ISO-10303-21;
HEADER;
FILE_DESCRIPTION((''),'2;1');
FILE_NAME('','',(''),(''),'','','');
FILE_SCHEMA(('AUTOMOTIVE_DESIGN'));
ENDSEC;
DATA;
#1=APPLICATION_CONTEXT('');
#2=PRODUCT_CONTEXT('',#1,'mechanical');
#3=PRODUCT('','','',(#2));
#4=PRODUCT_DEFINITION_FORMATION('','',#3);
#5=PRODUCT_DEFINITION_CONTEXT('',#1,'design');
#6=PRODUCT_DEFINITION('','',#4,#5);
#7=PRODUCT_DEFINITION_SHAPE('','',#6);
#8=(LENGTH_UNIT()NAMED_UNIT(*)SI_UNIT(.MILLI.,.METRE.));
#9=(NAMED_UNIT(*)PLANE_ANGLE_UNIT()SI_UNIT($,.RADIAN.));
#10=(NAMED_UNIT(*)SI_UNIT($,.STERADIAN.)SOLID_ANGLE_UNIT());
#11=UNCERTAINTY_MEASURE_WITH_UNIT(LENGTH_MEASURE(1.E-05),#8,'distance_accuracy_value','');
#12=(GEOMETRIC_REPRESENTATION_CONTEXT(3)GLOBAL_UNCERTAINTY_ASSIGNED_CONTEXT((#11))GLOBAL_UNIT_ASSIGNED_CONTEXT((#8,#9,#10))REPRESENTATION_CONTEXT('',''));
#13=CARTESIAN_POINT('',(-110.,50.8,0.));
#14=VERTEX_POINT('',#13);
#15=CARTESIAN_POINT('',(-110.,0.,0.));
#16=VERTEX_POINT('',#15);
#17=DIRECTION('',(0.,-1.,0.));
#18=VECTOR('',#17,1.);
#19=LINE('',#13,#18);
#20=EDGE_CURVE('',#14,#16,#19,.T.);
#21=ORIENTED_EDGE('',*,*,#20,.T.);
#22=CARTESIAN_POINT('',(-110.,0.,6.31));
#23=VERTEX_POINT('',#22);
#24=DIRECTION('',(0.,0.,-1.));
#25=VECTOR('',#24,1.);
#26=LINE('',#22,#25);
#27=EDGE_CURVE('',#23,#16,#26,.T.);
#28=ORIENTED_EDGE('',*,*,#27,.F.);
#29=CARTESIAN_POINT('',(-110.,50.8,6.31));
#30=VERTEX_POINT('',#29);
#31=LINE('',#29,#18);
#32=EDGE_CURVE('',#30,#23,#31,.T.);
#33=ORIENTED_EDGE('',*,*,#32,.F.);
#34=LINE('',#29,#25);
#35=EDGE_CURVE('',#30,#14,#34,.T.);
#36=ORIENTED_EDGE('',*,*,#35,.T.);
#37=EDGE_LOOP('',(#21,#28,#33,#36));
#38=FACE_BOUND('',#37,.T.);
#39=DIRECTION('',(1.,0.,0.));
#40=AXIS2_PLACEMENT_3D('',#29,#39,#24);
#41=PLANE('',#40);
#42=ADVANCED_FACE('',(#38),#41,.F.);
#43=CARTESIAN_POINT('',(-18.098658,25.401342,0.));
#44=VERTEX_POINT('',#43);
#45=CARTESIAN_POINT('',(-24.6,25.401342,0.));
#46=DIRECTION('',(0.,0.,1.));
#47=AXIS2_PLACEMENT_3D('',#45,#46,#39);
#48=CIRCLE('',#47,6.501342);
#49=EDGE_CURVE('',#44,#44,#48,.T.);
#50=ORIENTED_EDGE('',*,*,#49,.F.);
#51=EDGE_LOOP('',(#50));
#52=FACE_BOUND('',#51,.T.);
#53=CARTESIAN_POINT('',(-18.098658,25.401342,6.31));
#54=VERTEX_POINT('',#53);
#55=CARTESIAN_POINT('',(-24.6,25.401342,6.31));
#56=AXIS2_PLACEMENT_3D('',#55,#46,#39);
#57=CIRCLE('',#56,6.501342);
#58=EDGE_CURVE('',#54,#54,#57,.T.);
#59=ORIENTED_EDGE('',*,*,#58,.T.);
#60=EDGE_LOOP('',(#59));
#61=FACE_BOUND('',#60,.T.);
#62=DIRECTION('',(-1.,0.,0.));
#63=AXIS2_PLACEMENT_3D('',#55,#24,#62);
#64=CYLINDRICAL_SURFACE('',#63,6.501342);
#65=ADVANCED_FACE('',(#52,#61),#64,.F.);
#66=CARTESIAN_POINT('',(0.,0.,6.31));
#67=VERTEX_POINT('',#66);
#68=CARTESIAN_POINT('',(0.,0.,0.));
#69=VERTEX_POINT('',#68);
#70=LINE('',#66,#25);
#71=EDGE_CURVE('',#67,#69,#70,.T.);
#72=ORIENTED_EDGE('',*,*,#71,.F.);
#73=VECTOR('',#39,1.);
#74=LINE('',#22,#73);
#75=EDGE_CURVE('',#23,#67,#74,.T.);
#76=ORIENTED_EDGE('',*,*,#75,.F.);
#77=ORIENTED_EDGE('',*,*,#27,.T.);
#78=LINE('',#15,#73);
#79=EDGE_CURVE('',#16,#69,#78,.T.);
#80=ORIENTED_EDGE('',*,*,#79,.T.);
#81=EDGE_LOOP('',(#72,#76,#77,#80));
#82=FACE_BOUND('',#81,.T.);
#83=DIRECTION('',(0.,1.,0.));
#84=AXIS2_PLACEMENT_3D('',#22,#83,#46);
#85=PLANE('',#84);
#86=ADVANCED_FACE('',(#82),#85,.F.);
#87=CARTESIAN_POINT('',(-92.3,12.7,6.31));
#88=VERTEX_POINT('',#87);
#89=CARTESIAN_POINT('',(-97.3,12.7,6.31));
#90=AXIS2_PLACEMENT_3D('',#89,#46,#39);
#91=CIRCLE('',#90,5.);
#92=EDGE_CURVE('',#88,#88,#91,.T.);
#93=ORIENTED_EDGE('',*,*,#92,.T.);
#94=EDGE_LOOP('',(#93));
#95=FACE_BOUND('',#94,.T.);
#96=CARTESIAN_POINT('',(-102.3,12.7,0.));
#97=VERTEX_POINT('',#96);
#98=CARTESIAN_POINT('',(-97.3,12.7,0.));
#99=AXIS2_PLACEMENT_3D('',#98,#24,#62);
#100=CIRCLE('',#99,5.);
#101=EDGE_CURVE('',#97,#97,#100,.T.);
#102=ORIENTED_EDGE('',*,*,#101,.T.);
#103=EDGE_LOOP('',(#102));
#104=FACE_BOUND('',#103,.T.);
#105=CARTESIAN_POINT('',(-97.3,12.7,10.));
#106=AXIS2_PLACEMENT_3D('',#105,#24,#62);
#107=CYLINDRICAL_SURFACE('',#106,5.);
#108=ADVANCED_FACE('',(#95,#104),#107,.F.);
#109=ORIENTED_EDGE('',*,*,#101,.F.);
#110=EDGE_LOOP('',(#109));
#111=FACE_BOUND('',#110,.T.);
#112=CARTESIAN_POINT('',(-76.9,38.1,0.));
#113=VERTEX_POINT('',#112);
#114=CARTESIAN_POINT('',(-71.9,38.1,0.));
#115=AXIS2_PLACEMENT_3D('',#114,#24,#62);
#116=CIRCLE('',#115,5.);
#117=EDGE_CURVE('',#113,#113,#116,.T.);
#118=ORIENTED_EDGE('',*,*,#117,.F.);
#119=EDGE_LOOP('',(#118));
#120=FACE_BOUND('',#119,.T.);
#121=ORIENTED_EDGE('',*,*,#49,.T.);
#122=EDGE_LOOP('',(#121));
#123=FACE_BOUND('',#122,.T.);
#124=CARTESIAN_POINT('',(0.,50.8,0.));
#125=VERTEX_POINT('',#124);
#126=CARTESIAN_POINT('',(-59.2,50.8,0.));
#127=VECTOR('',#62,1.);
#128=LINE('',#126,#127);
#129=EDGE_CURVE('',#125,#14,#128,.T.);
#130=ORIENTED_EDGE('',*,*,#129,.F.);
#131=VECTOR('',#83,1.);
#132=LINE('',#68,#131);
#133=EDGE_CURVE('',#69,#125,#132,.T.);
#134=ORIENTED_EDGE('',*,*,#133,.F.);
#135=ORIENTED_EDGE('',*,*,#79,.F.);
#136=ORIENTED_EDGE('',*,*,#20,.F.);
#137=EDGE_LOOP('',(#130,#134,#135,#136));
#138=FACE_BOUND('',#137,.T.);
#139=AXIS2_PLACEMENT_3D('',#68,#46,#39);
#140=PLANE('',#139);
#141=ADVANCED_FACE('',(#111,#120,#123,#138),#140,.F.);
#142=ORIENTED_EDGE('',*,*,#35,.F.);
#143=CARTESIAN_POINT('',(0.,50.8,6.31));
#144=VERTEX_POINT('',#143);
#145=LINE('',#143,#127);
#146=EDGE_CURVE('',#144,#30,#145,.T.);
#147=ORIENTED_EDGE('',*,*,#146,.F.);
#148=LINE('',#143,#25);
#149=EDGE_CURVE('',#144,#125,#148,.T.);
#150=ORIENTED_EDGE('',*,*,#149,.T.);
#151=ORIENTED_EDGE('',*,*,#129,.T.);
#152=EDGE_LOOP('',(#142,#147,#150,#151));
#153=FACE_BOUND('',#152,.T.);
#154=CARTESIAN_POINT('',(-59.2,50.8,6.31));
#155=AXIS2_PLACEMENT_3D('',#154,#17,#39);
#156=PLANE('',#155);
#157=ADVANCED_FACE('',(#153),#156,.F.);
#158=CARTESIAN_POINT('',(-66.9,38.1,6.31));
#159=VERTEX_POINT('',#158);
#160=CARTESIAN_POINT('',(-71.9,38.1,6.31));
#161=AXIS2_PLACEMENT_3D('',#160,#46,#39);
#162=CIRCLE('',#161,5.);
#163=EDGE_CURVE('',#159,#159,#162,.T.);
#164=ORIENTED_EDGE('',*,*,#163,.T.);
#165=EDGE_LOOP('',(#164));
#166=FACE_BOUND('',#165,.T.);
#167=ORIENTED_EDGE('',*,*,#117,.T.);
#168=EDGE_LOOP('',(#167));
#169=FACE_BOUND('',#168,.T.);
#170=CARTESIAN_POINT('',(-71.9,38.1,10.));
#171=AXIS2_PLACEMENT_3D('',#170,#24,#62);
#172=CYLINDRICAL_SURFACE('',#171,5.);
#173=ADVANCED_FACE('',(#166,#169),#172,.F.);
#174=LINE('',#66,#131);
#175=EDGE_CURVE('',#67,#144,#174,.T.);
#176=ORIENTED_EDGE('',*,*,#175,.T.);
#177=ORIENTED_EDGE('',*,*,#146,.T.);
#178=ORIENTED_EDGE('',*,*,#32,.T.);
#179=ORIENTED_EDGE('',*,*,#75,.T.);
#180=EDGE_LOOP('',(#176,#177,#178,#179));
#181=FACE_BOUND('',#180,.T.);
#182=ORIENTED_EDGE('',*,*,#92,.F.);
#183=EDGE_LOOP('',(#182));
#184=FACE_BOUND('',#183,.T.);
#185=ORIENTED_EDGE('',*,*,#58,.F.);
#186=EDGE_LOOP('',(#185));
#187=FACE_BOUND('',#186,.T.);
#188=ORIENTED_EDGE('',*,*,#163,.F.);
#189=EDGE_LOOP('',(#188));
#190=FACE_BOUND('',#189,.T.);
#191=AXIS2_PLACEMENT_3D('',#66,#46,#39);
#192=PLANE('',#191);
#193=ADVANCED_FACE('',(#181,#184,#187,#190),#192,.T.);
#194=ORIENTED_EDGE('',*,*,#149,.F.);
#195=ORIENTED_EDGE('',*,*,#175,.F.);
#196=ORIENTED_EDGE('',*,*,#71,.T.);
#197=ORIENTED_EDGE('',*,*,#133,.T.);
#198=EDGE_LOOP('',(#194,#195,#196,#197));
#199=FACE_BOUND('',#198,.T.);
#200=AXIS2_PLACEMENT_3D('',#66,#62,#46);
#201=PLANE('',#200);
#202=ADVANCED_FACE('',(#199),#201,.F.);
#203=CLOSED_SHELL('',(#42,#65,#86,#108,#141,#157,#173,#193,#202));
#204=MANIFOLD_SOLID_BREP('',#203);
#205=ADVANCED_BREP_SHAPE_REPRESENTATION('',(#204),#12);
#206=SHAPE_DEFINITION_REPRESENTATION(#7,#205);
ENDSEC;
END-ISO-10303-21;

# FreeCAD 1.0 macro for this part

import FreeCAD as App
import Part
import Sketcher
Q = App.Units.Quantity

doc = App.newDocument("Part")
body = doc.addObject("PartDesign::Body", "Body")

sketch1 = body.newObject("Sketcher::SketchObject", "Sketch")
sketch1.AttachmentSupport = (doc.getObject("XY_Plane"), [""])
sketch1.MapMode = "FlatFace"
sketch1.addGeometry(Part.LineSegment(App.Vector(-110, 50.8, 0), App.Vector(-110, 0, 0)), False)
sketch1.addGeometry(Part.LineSegment(App.Vector(-110, 0, 0), App.Vector(0, 0, 0)), False)
sketch1.addGeometry(Part.LineSegment(App.Vector(0, 0, 0), App.Vector(0, 50.8, 0)), False)
sketch1.addGeometry(Part.LineSegment(App.Vector(0, 50.8, 0), App.Vector(-110, 50.8, 0)), False)
sketch1.addGeometry(Part.Circle(App.Vector(-24.6, 25.401342, 0), App.Vector(0, 0, 1), 6.501342), False)
sketch1.addConstraint(Sketcher.Constraint("Coincident", 0, 2, 1, 1))
sketch1.addConstraint(Sketcher.Constraint("Coincident", 1, 2, 2, 1))
sketch1.addConstraint(Sketcher.Constraint("Coincident", 2, 2, 3, 1))
sketch1.addConstraint(Sketcher.Constraint("Coincident", 3, 2, 0, 1))
sketch1.addConstraint(Sketcher.Constraint("Vertical", 0))
sketch1.addConstraint(Sketcher.Constraint("Horizontal", 1))
sketch1.addConstraint(Sketcher.Constraint("Vertical", 2))
sketch1.addConstraint(Sketcher.Constraint("Horizontal", 3))
sketch1.addConstraint(Sketcher.Constraint("Coincident", 1, 2, -1, 1))
sketch1.addConstraint(Sketcher.Constraint("DistanceX", 1, 1, 1, 2, Q("110 mm")))
sketch1.addConstraint(Sketcher.Constraint("DistanceY", 0, 2, 0, 1, Q("50.8 mm")))
sketch1.addConstraint(Sketcher.Constraint("DistanceX", 4, 3, -1, 1, Q("24.6 mm")))
sketch1.addConstraint(Sketcher.Constraint("Diameter", 4, Q("13.002684 mm")))
sketch1.addConstraint(Sketcher.Constraint("DistanceY", -1, 1, 4, 3, Q("25.401342 mm")))
pad1 = body.newObject("PartDesign::Pad", "Pad")
pad1.Profile = sketch1
pad1.Length = 6.31

sketch2 = body.newObject("Sketcher::SketchObject", "Sketch001")
sketch2.AttachmentSupport = (doc.getObject("XY_Plane"), [""])
sketch2.MapMode = "FlatFace"
sketch2.addGeometry(Part.Circle(App.Vector(-97.3, 12.7, 0), App.Vector(0, 0, 1), 5), False)
sketch2.addGeometry(Part.Circle(App.Vector(-71.9, 38.1, 0), App.Vector(0, 0, 1), 5), False)
sketch2.addConstraint(Sketcher.Constraint("Equal", 0, 1))
sketch2.addConstraint(Sketcher.Constraint("Diameter", 0, Q("10 mm")))
sketch2.addConstraint(Sketcher.Constraint("DistanceX", 0, 3, -1, 1, Q("97.3 mm")))
sketch2.addConstraint(Sketcher.Constraint("DistanceY", -1, 1, 0, 3, Q("12.7 mm")))
sketch2.addConstraint(Sketcher.Constraint("DistanceX", 1, 3, -1, 1, Q("71.9 mm")))
sketch2.addConstraint(Sketcher.Constraint("DistanceY", -1, 1, 1, 3, Q("38.1 mm")))
pocket1 = body.newObject("PartDesign::Pocket", "Pocket")
pocket1.Profile = sketch2
pocket1.Length = 10
pocket1.Reversed = True

doc.recompute()
